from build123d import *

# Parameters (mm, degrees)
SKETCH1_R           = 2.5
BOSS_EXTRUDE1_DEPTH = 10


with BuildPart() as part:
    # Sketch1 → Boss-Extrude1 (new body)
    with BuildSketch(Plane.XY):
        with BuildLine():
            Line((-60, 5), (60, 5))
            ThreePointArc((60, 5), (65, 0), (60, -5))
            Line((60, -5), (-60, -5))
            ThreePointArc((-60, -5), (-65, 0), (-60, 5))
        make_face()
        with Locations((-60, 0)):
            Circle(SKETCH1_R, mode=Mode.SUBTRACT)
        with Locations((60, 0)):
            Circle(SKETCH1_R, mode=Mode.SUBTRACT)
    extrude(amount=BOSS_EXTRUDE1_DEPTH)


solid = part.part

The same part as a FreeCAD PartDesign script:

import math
import FreeCAD as App
import Part
import Sketcher

V = App.Vector

doc = App.newDocument("Part")
body = doc.addObject("PartDesign::Body", "Body")

# Sketch on XY plane
sketch1 = body.newObject("Sketcher::SketchObject", "Sketch")
sketch1.AttachmentSupport = (doc.getObject("XY_Plane"), [""])
sketch1.MapMode = "FlatFace"
sketch1.addGeometry(Part.LineSegment(V(60, 5, 0), V(-60, 5, 0)), False)
sketch1.addGeometry(Part.ArcOfCircle(Part.Circle(V(-60, 0, 0), V(0, 0, 1), 5), math.radians(90), math.radians(270)), False)
sketch1.addGeometry(Part.LineSegment(V(-60, -5, 0), V(60, -5, 0)), False)
sketch1.addGeometry(Part.ArcOfCircle(Part.Circle(V(60, 0, 0), V(0, 0, 1), 5), math.radians(-90), math.radians(90)), False)
sketch1.addGeometry(Part.Circle(V(60, 0, 0), V(0, 0, 1), 2.5), False)
sketch1.addGeometry(Part.Circle(V(-60, 0, 0), V(0, 0, 1), 2.5), False)
sketch1.addConstraint(Sketcher.Constraint("Tangent", 0, 2, 1, 1))
sketch1.addConstraint(Sketcher.Constraint("Tangent", 1, 2, 2, 1))
sketch1.addConstraint(Sketcher.Constraint("Tangent", 2, 2, 3, 1))
sketch1.addConstraint(Sketcher.Constraint("Tangent", 3, 2, 0, 1))
sketch1.addConstraint(Sketcher.Constraint("Horizontal", 0))
sketch1.addConstraint(Sketcher.Constraint("Horizontal", 2))
sketch1.addConstraint(Sketcher.Constraint("Coincident", 4, 3, 3, 3))
sketch1.addConstraint(Sketcher.Constraint("Coincident", 5, 3, 1, 3))
sketch1.addConstraint(Sketcher.Constraint("Equal", 4, 5))
sketch1.addConstraint(Sketcher.Constraint("Symmetric", 1, 3, 3, 3, -1, 1))
sketch1.addConstraint(Sketcher.Constraint("Diameter", 4, 5.0))
sketch1.addConstraint(Sketcher.Constraint("Radius", 1, 5.0))
sketch1.addConstraint(Sketcher.Constraint("DistanceX", 0, 2, 0, 1, 120.0))
pad1 = body.newObject("PartDesign::Pad", "Pad")
pad1.Profile = sketch1
pad1.Length = 10

doc.recompute()
